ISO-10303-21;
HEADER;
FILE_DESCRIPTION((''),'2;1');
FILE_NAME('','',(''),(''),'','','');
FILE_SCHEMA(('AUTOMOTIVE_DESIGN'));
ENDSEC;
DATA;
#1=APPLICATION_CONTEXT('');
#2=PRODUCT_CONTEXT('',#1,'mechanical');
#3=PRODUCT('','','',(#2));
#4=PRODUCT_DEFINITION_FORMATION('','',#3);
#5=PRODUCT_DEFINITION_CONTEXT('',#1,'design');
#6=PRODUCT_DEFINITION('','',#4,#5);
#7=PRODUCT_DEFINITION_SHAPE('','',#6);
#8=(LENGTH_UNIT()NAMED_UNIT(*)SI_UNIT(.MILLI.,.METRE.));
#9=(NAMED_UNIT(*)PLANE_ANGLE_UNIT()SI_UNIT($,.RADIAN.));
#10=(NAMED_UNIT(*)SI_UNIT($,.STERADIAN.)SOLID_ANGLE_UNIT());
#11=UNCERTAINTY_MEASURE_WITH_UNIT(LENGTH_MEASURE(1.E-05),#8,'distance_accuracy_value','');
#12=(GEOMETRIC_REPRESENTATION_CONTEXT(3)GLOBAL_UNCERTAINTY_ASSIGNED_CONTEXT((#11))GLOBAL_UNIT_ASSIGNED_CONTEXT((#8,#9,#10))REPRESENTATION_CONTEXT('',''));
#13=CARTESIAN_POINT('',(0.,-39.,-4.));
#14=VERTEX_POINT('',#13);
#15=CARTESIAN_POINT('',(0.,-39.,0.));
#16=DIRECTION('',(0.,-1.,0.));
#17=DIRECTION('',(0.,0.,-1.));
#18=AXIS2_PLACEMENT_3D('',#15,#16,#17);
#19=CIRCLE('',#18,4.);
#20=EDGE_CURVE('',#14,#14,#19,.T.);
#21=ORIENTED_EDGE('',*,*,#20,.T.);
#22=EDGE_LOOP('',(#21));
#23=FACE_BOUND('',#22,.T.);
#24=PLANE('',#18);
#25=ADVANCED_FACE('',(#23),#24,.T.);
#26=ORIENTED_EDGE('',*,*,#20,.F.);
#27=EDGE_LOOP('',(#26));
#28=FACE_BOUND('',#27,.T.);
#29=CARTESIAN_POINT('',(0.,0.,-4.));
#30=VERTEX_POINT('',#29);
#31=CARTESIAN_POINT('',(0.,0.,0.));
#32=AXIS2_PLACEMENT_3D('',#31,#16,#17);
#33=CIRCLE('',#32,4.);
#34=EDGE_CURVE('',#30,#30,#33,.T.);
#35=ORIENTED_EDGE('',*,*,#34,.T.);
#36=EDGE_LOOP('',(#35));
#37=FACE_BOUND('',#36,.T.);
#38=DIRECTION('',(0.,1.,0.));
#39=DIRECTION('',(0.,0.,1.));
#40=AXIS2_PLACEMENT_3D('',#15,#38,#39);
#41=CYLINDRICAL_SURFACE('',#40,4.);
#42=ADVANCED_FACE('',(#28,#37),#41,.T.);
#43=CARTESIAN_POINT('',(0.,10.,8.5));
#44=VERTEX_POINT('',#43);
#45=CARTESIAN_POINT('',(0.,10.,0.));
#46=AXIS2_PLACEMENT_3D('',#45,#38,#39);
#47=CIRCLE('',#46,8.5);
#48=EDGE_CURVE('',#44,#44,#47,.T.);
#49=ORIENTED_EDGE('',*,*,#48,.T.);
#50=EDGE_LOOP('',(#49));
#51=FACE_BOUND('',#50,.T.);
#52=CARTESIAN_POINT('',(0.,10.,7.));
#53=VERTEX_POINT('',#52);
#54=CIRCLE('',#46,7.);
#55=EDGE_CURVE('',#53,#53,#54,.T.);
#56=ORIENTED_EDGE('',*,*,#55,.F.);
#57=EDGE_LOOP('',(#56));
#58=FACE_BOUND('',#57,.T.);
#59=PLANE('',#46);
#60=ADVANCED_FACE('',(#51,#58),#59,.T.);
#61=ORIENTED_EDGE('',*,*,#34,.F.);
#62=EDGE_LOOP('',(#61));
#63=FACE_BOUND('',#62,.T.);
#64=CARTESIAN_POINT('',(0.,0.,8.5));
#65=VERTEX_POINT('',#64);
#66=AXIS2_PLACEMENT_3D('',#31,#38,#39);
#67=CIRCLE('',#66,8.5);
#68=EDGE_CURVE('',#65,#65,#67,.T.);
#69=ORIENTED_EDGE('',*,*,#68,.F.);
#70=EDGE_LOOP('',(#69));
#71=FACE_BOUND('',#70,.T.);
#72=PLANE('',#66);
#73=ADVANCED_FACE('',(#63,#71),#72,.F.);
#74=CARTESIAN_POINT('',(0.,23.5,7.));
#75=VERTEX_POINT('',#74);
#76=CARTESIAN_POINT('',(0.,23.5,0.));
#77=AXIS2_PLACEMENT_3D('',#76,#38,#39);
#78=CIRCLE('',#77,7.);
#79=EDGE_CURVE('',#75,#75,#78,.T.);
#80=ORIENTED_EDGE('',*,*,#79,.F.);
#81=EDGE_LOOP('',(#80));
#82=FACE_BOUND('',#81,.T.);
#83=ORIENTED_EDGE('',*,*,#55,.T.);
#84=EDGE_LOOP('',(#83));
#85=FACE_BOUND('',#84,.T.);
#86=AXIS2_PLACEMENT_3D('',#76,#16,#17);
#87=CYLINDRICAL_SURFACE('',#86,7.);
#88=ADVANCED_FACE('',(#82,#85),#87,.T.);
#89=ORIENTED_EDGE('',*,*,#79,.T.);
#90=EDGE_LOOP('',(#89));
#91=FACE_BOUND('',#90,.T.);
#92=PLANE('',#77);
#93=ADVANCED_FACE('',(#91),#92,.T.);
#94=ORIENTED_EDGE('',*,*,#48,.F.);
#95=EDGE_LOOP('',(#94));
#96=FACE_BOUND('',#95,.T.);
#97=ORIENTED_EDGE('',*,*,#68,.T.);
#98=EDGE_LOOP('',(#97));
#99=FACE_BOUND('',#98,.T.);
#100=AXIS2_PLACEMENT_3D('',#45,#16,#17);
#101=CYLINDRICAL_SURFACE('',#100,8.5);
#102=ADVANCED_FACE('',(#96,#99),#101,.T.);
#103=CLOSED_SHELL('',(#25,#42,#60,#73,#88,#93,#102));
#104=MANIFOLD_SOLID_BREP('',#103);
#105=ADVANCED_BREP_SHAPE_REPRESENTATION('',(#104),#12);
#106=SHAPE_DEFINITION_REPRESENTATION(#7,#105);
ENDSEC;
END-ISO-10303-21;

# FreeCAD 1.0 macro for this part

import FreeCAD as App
import Part
import Sketcher

doc = App.newDocument("Part")
body = doc.addObject("PartDesign::Body", "Body")

# Sketch on XZ plane
sketch1 = body.newObject("Sketcher::SketchObject", "Sketch")
sketch1.AttachmentSupport = (doc.getObject("XZ_Plane"), [""])
sketch1.MapMode = "FlatFace"
sketch1.addGeometry(Part.Circle(App.Vector(0, 0, 0), App.Vector(0, 0, 1), 8), False)
sketch1.addConstraint([
    Sketcher.Constraint("Coincident", 0, 3, -1, 1),
    Sketcher.Constraint("Diameter", 0, 17.0),
])
pad1 = body.newObject("PartDesign::Pad", "Pad")
pad1.Profile = sketch1
pad1.Length = 10
pad1.Reversed = True

# Sketch on XZ plane
sketch2 = body.newObject("Sketcher::SketchObject", "Sketch001")
sketch2.AttachmentSupport = (doc.getObject("XZ_Plane"), [""])
sketch2.MapMode = "FlatFace"
sketch2.AttachmentOffset = App.Placement(App.Vector(0, 0, -10), App.Rotation())
sketch2.addGeometry(Part.Circle(App.Vector(0, 0, 0), App.Vector(0, 0, 1), 7), False)
sketch2.addConstraint([
    Sketcher.Constraint("Coincident", 0, 3, -1, 1),
    Sketcher.Constraint("Diameter", 0, 14.0),
])
pad2 = body.newObject("PartDesign::Pad", "Pad001")
pad2.Profile = sketch2
pad2.Length = 13.5
pad2.Reversed = True

# Sketch on XZ plane
sketch3 = body.newObject("Sketcher::SketchObject", "Sketch002")
sketch3.AttachmentSupport = (doc.getObject("XZ_Plane"), [""])
sketch3.MapMode = "FlatFace"
sketch3.addGeometry(Part.Circle(App.Vector(0, 0, 0), App.Vector(0, 0, 1), 4), False)
sketch3.addConstraint([
    Sketcher.Constraint("Coincident", 0, 3, -1, 1),
    Sketcher.Constraint("Diameter", 0, 8.0),
])
pad3 = body.newObject("PartDesign::Pad", "Pad002")
pad3.Profile = sketch3
pad3.Length = 39

doc.recompute()
